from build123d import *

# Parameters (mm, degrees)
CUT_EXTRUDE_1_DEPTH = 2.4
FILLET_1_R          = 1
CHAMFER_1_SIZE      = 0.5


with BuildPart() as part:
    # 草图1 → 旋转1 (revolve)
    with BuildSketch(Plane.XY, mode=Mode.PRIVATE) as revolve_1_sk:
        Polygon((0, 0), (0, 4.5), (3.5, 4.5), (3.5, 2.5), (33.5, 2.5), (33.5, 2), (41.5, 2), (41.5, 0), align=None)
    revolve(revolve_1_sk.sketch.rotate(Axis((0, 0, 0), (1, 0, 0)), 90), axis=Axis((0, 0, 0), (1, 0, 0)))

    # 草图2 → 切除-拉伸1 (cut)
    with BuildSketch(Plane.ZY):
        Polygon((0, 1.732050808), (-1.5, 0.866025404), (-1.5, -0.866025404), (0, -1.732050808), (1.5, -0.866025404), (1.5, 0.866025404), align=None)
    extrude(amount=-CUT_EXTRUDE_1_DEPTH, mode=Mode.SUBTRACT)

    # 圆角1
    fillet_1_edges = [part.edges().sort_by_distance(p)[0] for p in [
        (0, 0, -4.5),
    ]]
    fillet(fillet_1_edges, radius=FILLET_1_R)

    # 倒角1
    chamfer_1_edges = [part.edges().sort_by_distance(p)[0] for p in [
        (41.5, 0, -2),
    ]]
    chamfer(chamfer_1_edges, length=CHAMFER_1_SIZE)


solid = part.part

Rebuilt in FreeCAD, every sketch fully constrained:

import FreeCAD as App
import Part
import Sketcher
from FreeCAD import Vector
Q = App.Units.Quantity


def edges_at(feature, points):
    """Names of the edges that pass closest to the given points."""
    edges = feature.Shape.Edges
    near = lambda p: min(range(len(edges)), key=lambda i: edges[i].distToShape(Part.Vertex(*p))[0])
    return sorted({f"Edge{near(p) + 1}" for p in points})


def add_polygon(sketch, points):
    """Adds a closed chain of lines whose ends are joined by coincident constraints."""
    first, n = sketch.GeometryCount, len(points)
    for a, b in zip(points, points[1:] + points[:1]):
        sketch.addGeometry(Part.LineSegment(App.Vector(*a, 0), App.Vector(*b, 0)), False)
    for i in range(n):
        sketch.addConstraint(Sketcher.Constraint("Coincident", first + i, 2, first + (i + 1) % n, 1))

doc = App.newDocument("Part")
params = doc.addObject("Spreadsheet::Sheet", "Params")
for row, (alias, value) in enumerate([
    ("sketch1_width", "8 mm"),
    ("sketch1_width2", "30 mm"),
    ("sketch1_height", "2 mm"),
    ("sketch1_width3", "41.5 mm"),
    ("sketch1_height2", "4.5 mm"),
    ("revolution_angle", "360 deg"),
    ("pocket1_length", "2.4 mm"),
    ("fillet_radius", "1 mm"),
    ("chamfer_size", "0.5 mm"),
], start=1):
    params.set(f"A{row}", alias)
    params.set(f"B{row}", "=" + value)
    params.setAlias(f"B{row}", alias)

body = doc.addObject("PartDesign::Body", "Body")

sketch1 = body.newObject("Sketcher::SketchObject", "Sketch")
sketch1.AttachmentSupport = (doc.getObject("XY_Plane"), [""])
sketch1.MapMode = "FlatFace"
add_polygon(sketch1, [(0, 4.5), (0, 0), (41.5, 0), (41.5, 2), (33.5, 2), (33.5, 2.5), (3.5, 2.5), (3.5, 4.5)])
sketch1.addConstraint(Sketcher.Constraint("Vertical", 0))
sketch1.addConstraint(Sketcher.Constraint("Horizontal", 1))
sketch1.addConstraint(Sketcher.Constraint("Vertical", 2))
sketch1.addConstraint(Sketcher.Constraint("Horizontal", 3))
sketch1.addConstraint(Sketcher.Constraint("Vertical", 4))
sketch1.addConstraint(Sketcher.Constraint("Horizontal", 5))
sketch1.addConstraint(Sketcher.Constraint("Vertical", 6))
sketch1.addConstraint(Sketcher.Constraint("Horizontal", 7))
sketch1.addConstraint(Sketcher.Constraint("Coincident", 0, 2, -1, 1))
sketch1.addConstraint(Sketcher.Constraint("Equal", 2, 6))
sketch1.addConstraint(Sketcher.Constraint("DistanceX", 3, 2, 3, 1, Q("8 mm")))
sketch1.addConstraint(Sketcher.Constraint("DistanceX", 5, 2, 5, 1, Q("30 mm")))
sketch1.addConstraint(Sketcher.Constraint("DistanceY", 2, 1, 2, 2, Q("2 mm")))
sketch1.addConstraint(Sketcher.Constraint("DistanceX", 1, 1, 1, 2, Q("41.5 mm")))
sketch1.addConstraint(Sketcher.Constraint("DistanceY", 0, 2, 0, 1, Q("4.5 mm")))
sketch1.setExpression("Constraints[18]", "Params.sketch1_width")
sketch1.setExpression("Constraints[19]", "Params.sketch1_width2")
sketch1.setExpression("Constraints[20]", "Params.sketch1_height")
sketch1.setExpression("Constraints[21]", "Params.sketch1_width3")
sketch1.setExpression("Constraints[22]", "Params.sketch1_height2")
revolution = body.newObject("PartDesign::Revolution", "Revolution")
revolution.Profile = sketch1
revolution.ReferenceAxis = (sketch1, ["H_Axis"])
revolution.setExpression("Angle", "Params.revolution_angle")

sketch2 = body.newObject("Sketcher::SketchObject", "Sketch001")
sketch2.AttachmentSupport = (doc.getObject("YZ_Plane"), [""])
sketch2.MapMode = "FlatFace"
add_polygon(sketch2, [(1.7, 0), (0.9, -1.5), (-0.9, -1.5), (-1.7, 0), (-0.9, 1.5), (0.9, 1.5)])
sketch2.addConstraint(Sketcher.Constraint("Horizontal", 1))
sketch2.addConstraint(Sketcher.Constraint("Horizontal", 4))
sketch2.addConstraint(Sketcher.Constraint("Symmetric", 0, 2, 3, 2, -1, 1))
sketch2.addConstraint(Sketcher.Constraint("Symmetric", 2, 2, 5, 2, -1, 1))
sketch2.addConstraint(Sketcher.Constraint("PointOnObject", 2, 2, -1))
sketch2.addConstraint(Sketcher.Constraint("Parallel", 2, 5))
sketch2.addConstraint(Sketcher.Constraint("Vertical", 1, 2, 3, 2))
sketch2.addConstraint(Sketcher.Constraint("Angle", 0, Q("-120 deg")))
sketch2.addConstraint(Sketcher.Constraint("DistanceY", 1, 2, 3, 2, Q("3 mm")))
sketch2.addConstraint(Sketcher.Constraint("DistanceX", 1, 2, 1, 1, Q("1.732051 mm")))
pocket1 = body.newObject("PartDesign::Pocket", "Pocket")
pocket1.Profile = sketch2
pocket1.setExpression("Length", "Params.pocket1_length")
pocket1.Reversed = True
doc.recompute()

fillet = body.newObject("PartDesign::Fillet", "Fillet")
fillet.Base = (pocket1, edges_at(pocket1, [(0, 0, -4.5)]))
fillet.setExpression("Radius", "Params.fillet_radius")
doc.recompute()

chamfer = body.newObject("PartDesign::Chamfer", "Chamfer")
chamfer.Base = (fillet, edges_at(fillet, [(41.5, 0, -2)]))
chamfer.setExpression("Size", "Params.chamfer_size")

doc.recompute()
